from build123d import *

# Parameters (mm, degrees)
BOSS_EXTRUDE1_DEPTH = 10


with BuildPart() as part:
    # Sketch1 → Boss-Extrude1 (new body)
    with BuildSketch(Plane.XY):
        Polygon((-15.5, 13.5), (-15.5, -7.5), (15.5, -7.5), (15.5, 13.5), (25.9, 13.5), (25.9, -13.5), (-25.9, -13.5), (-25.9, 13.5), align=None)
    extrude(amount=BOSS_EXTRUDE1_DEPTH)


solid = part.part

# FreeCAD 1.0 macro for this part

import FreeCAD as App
import Part
import Sketcher

V = App.Vector
Q = App.Units.Quantity


def add_polygon(sketch, points):
    """Adds a closed chain of lines whose ends are joined by coincident constraints."""
    first, n = sketch.GeometryCount, len(points)
    for a, b in zip(points, points[1:] + points[:1]):
        sketch.addGeometry(Part.LineSegment(App.Vector(*a, 0), App.Vector(*b, 0)), False)
    for i in range(n):
        sketch.addConstraint(Sketcher.Constraint("Coincident", first + i, 2, first + (i + 1) % n, 1))

doc = App.newDocument("Part")
body = doc.addObject("PartDesign::Body", "Body")

# Sketch on XY plane
sketch1 = doc.addObject("Sketcher::SketchObject", "Sketch")
body.addObject(sketch1)
sketch1.AttachmentSupport = (doc.XY_Plane, [""])
sketch1.MapMode = "FlatFace"
add_polygon(sketch1, [(-16, -8), (-16, 14), (-26, 14), (-26, -14), (26, -14), (26, 14), (16, 14), (16, -8)])  # lines 0-7
sketch1.addConstraint(Sketcher.Constraint("Vertical", 0))
sketch1.addConstraint(Sketcher.Constraint("Horizontal", 1))
sketch1.addConstraint(Sketcher.Constraint("Vertical", 2))
sketch1.addConstraint(Sketcher.Constraint("Horizontal", 3))
sketch1.addConstraint(Sketcher.Constraint("Vertical", 4))
sketch1.addConstraint(Sketcher.Constraint("Horizontal", 5))
sketch1.addConstraint(Sketcher.Constraint("Vertical", 6))
sketch1.addConstraint(Sketcher.Constraint("Horizontal", 7))
sketch1.addConstraint(Sketcher.Constraint("Symmetric", 1, 2, 3, 2, -1, 1))
sketch1.addConstraint(Sketcher.Constraint("Symmetric", 0, 2, 5, 2, -2))
sketch1.addConstraint(Sketcher.Constraint("DistanceX", 7, 2, 7, 1, Q("31 mm")))
sketch1.addConstraint(Sketcher.Constraint("DistanceY", 0, 1, 0, 2, Q("21 mm")))
sketch1.addConstraint(Sketcher.Constraint("DistanceY", 2, 2, 2, 1, Q("27 mm")))
sketch1.addConstraint(Sketcher.Constraint("DistanceX", 1, 2, 1, 1, Q("10.4 mm")))
pad1 = doc.addObject("PartDesign::Pad", "Pad")
body.addObject(pad1)
pad1.Profile = sketch1
pad1.Length = 10

doc.recompute()
